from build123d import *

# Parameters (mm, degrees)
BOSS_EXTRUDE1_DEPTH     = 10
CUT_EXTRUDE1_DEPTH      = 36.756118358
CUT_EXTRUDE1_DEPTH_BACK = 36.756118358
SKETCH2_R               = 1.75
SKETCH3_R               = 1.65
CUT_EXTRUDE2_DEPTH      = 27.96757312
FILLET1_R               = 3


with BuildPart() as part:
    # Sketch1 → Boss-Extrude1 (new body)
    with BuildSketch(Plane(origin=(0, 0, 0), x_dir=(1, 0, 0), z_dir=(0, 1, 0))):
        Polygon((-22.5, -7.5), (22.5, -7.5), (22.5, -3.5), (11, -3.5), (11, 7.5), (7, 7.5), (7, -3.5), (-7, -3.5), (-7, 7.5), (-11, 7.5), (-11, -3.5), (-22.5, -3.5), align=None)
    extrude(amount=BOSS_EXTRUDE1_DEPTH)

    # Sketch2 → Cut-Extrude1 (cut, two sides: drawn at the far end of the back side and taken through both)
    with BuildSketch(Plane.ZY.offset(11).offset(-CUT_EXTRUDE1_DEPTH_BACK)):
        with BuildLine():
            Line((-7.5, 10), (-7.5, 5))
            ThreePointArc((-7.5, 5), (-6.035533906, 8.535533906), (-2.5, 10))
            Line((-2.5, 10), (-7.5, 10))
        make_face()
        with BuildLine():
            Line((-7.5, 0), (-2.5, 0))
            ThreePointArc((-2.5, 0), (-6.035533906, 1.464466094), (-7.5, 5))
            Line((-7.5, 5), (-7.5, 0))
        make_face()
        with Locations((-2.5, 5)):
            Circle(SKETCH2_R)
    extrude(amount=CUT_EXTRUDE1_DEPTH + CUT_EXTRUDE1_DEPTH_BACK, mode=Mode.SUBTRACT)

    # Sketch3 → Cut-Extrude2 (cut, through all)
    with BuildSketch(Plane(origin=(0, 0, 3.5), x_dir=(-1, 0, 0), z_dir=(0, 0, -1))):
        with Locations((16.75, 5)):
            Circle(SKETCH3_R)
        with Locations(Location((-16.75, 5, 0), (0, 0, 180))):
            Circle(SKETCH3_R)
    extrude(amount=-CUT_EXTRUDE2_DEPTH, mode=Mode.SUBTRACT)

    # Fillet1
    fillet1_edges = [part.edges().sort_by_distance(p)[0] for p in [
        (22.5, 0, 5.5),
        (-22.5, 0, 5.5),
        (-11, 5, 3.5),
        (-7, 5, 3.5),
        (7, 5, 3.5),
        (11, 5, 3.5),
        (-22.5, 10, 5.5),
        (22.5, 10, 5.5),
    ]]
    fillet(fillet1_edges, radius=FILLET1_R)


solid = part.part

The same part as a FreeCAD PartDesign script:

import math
import FreeCAD as App
import Part
import Sketcher


def edges_at(feature, points):
    """Names of the edges that pass closest to the given points."""
    edges = feature.Shape.Edges
    near = lambda p: min(range(len(edges)), key=lambda i: edges[i].distToShape(Part.Vertex(*p))[0])
    return sorted({f"Edge{near(p) + 1}" for p in points})

doc = App.newDocument("Part")
body = doc.addObject("PartDesign::Body", "Body")

# Sketch on XZ plane
sketch1 = doc.addObject("Sketcher::SketchObject", "Sketch")
body.addObject(sketch1)
sketch1.AttachmentSupport = (doc.XZ_Plane, [""])
sketch1.MapMode = "FlatFace"
sketch1.addGeometry([
    Part.LineSegment(App.Vector(-22.5, 7.5, 0), App.Vector(22.5, 7.5, 0)),  # 0
    Part.LineSegment(App.Vector(22.5, 7.5, 0), App.Vector(22.5, 3.5, 0)),  # 1
    Part.LineSegment(App.Vector(22.5, 3.5, 0), App.Vector(11, 3.5, 0)),  # 2
    Part.LineSegment(App.Vector(11, 3.5, 0), App.Vector(11, -7.5, 0)),  # 3
    Part.LineSegment(App.Vector(11, -7.5, 0), App.Vector(7, -7.5, 0)),  # 4
    Part.LineSegment(App.Vector(7, -7.5, 0), App.Vector(7, 3.5, 0)),  # 5
    Part.LineSegment(App.Vector(7, 3.5, 0), App.Vector(-7, 3.5, 0)),  # 6
    Part.LineSegment(App.Vector(-7, 3.5, 0), App.Vector(-7, -7.5, 0)),  # 7
    Part.LineSegment(App.Vector(-7, -7.5, 0), App.Vector(-11, -7.5, 0)),  # 8
    Part.LineSegment(App.Vector(-11, -7.5, 0), App.Vector(-11, 3.5, 0)),  # 9
    Part.LineSegment(App.Vector(-11, 3.5, 0), App.Vector(-22.5, 3.5, 0)),  # 10
    Part.LineSegment(App.Vector(-22.5, 3.5, 0), App.Vector(-22.5, 7.5, 0)),  # 11
], False)
sketch1.addConstraint([
    Sketcher.Constraint("Coincident", 0, 2, 1, 1),
    Sketcher.Constraint("Coincident", 1, 2, 2, 1),
    Sketcher.Constraint("Coincident", 2, 2, 3, 1),
    Sketcher.Constraint("Coincident", 3, 2, 4, 1),
    Sketcher.Constraint("Coincident", 4, 2, 5, 1),
    Sketcher.Constraint("Coincident", 5, 2, 6, 1),
    Sketcher.Constraint("Coincident", 6, 2, 7, 1),
    Sketcher.Constraint("Coincident", 7, 2, 8, 1),
    Sketcher.Constraint("Coincident", 8, 2, 9, 1),
    Sketcher.Constraint("Coincident", 9, 2, 10, 1),
    Sketcher.Constraint("Coincident", 10, 2, 11, 1),
    Sketcher.Constraint("Coincident", 11, 2, 0, 1),
    Sketcher.Constraint("Horizontal", 0),
    Sketcher.Constraint("Vertical", 1),
    Sketcher.Constraint("Horizontal", 2),
    Sketcher.Constraint("Vertical", 3),
    Sketcher.Constraint("Horizontal", 4),
    Sketcher.Constraint("Vertical", 5),
    Sketcher.Constraint("Horizontal", 6),
    Sketcher.Constraint("Vertical", 7),
    Sketcher.Constraint("Horizontal", 8),
    Sketcher.Constraint("Vertical", 9),
    Sketcher.Constraint("Horizontal", 10),
    Sketcher.Constraint("Vertical", 11),
    Sketcher.Constraint("Symmetric", 4, 2, 7, 2, -2),
    Sketcher.Constraint("Symmetric", 2, 2, 9, 2, -2),
    Sketcher.Constraint("Horizontal", 2, 2, 5, 2),
    Sketcher.Constraint("Equal", 2, 10),
    Sketcher.Constraint("Equal", 8, 1),
    Sketcher.Constraint("DistanceX", 0, 1, 0, 2, 45.0),
    Sketcher.Constraint("DistanceX", 4, 2, 4, 1, 4.0),
    Sketcher.Constraint("DistanceX", 6, 2, 6, 1, 14.0),
    Sketcher.Constraint("DistanceY", 3, 2, 3, 1, 11.0),
    Sketcher.Constraint("DistanceY", -1, 1, 0, 2, 7.5),
])
pad1 = doc.addObject("PartDesign::Pad", "Pad")
body.addObject(pad1)
pad1.Profile = sketch1
pad1.Length = 10
pad1.Reversed = True

# Sketch on YZ plane
sketch2 = doc.addObject("Sketcher::SketchObject", "Sketch001")
body.addObject(sketch2)
sketch2.AttachmentSupport = (doc.YZ_Plane, [""])
sketch2.MapMode = "FlatFace"
sketch2.AttachmentOffset = App.Placement(App.Vector(0, 0, -11), App.Rotation())
sketch2.addGeometry([
    Part.LineSegment(App.Vector(10, -7.5, 0), App.Vector(5, -7.5, 0)),  # 0
    Part.ArcOfCircle(Part.Circle(App.Vector(5, -2.5, 0), App.Vector(0, 0, 1), 5), math.radians(-90), math.radians(0)),  # 1
    Part.LineSegment(App.Vector(10, -2.5, 0), App.Vector(10, -7.5, 0)),  # 2
    Part.LineSegment(App.Vector(0, -7.5, 0), App.Vector(0, -2.5, 0)),  # 3
    Part.ArcOfCircle(Part.Circle(App.Vector(5, -2.5, 0), App.Vector(0, 0, 1), 5), math.radians(180), math.radians(270)),  # 4
    Part.LineSegment(App.Vector(5, -7.5, 0), App.Vector(0, -7.5, 0)),  # 5
    Part.Circle(App.Vector(5, -2.5, 0), App.Vector(0, 0, 1), 1.8),  # 6
], False)
sketch2.addConstraint([
    Sketcher.Constraint("Tangent", 0, 2, 1, 1),
    Sketcher.Constraint("Tangent", 1, 2, 2, 1),
    Sketcher.Constraint("Coincident", 2, 2, 0, 1),
    Sketcher.Constraint("Tangent", 3, 2, 4, 1),
    Sketcher.Constraint("Tangent", 4, 2, 5, 1),
    Sketcher.Constraint("Coincident", 5, 2, 3, 1),
    Sketcher.Constraint("Horizontal", 0),
    Sketcher.Constraint("Vertical", 2),
    Sketcher.Constraint("Vertical", 3),
    Sketcher.Constraint("Horizontal", 5),
    Sketcher.Constraint("Coincident", 4, 3, 1, 3),
    Sketcher.Constraint("Coincident", 6, 3, 1, 3),
    Sketcher.Constraint("Equal", 1, 4),
    Sketcher.Constraint("PointOnObject", 3, 2, -2),
    Sketcher.Constraint("Radius", 1, 5.0),
    Sketcher.Constraint("Diameter", 6, 3.5),
    Sketcher.Constraint("DistanceY", 1, 3, -1, 1, 2.5),
])
pocket1 = doc.addObject("PartDesign::Pocket", "Pocket")
body.addObject(pocket1)
pocket1.Profile = sketch2
pocket1.Type = "ThroughAll"
pocket1.Midplane = True

# Sketch on XY plane
sketch3 = doc.addObject("Sketcher::SketchObject", "Sketch002")
body.addObject(sketch3)
sketch3.AttachmentSupport = (doc.XY_Plane, [""])
sketch3.MapMode = "FlatFace"
sketch3.AttachmentOffset = App.Placement(App.Vector(0, 0, 3.5), App.Rotation())
sketch3.addGeometry([
    Part.Circle(App.Vector(-16.8, 5, 0), App.Vector(0, 0, 1), 1.6),
    Part.Circle(App.Vector(16.8, 5, 0), App.Vector(0, 0, 1), 1.6),
], False)
sketch3.addConstraint([
    Sketcher.Constraint("Equal", 0, 1),
    Sketcher.Constraint("Symmetric", 0, 3, 1, 3, -2),
    Sketcher.Constraint("Diameter", 0, 3.3),
    Sketcher.Constraint("DistanceY", -1, 1, 0, 3, 5.0),
    Sketcher.Constraint("DistanceX", 0, 3, 1, 3, 33.5),
])
pocket2 = doc.addObject("PartDesign::Pocket", "Pocket001")
body.addObject(pocket2)
pocket2.Profile = sketch3
pocket2.Type = "ThroughAll"
pocket2.Reversed = True
doc.recompute()

fillet = doc.addObject("PartDesign::Fillet", "Fillet")
body.addObject(fillet)
fillet.Base = (pocket2, edges_at(pocket2, [
    (22.5, 0, 5.5),
    (-22.5, 0, 5.5),
    (-11, 5, 3.5),
    (-7, 5, 3.5),
    (7, 5, 3.5),
    (11, 5, 3.5),
    (-22.5, 10, 5.5),
    (22.5, 10, 5.5),
]))
fillet.Radius = 3

doc.recompute()
